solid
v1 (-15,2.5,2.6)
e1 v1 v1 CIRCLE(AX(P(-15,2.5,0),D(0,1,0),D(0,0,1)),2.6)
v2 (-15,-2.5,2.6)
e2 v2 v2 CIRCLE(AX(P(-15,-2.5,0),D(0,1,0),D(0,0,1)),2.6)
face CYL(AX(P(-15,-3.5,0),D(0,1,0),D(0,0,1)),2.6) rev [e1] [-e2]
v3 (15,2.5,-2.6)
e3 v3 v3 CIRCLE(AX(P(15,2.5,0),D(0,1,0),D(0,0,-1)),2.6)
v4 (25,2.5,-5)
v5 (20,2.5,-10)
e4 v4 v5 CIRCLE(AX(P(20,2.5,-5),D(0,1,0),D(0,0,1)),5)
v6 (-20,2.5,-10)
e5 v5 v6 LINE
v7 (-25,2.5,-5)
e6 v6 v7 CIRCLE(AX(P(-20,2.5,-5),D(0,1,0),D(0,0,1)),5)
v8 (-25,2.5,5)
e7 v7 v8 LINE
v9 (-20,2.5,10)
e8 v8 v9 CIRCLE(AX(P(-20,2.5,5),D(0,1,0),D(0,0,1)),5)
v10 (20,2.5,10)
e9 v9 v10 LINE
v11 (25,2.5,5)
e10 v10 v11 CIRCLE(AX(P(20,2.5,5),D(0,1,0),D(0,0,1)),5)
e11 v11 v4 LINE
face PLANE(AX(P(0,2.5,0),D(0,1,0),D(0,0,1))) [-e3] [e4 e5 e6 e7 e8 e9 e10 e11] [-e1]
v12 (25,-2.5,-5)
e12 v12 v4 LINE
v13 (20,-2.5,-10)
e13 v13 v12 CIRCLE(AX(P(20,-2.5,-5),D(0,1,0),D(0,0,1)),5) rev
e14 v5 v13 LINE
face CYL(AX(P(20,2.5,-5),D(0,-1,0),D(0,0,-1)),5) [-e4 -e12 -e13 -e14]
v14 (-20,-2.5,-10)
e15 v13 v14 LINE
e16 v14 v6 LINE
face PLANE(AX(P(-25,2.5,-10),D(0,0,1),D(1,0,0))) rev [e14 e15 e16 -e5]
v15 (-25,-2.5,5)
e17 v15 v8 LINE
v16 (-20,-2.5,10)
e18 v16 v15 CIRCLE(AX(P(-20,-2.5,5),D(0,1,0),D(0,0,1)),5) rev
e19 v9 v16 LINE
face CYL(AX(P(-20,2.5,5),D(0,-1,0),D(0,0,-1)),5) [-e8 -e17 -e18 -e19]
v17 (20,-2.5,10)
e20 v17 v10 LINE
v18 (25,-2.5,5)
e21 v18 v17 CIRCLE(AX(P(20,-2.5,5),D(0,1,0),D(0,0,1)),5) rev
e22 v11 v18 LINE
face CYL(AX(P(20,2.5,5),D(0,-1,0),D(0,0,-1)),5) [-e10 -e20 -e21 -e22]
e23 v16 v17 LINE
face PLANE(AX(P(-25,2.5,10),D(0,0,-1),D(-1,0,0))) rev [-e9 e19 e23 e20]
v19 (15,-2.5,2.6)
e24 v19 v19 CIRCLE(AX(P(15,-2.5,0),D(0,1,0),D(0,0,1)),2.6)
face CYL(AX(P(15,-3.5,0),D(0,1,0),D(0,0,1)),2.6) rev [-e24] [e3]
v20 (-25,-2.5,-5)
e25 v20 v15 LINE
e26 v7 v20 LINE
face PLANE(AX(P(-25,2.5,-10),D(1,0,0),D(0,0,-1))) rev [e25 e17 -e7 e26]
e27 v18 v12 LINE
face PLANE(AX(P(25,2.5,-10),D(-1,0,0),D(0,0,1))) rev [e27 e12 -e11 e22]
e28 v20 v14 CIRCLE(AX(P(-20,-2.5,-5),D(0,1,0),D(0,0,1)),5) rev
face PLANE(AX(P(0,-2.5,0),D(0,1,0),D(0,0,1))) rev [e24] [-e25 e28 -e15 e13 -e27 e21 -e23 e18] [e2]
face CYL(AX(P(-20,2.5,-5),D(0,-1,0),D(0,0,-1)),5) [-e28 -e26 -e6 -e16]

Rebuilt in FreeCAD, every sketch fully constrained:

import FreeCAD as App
import Part
import Sketcher
from FreeCAD import Vector
Q = App.Units.Quantity


def edges_at(feature, points):
    """Names of the edges that pass closest to the given points."""
    edges = feature.Shape.Edges
    near = lambda p: min(range(len(edges)), key=lambda i: edges[i].distToShape(Part.Vertex(*p))[0])
    return sorted({f"Edge{near(p) + 1}" for p in points})


def add_polygon(sketch, points):
    """Adds a closed chain of lines whose ends are joined by coincident constraints."""
    first, n = sketch.GeometryCount, len(points)
    for a, b in zip(points, points[1:] + points[:1]):
        sketch.addGeometry(Part.LineSegment(App.Vector(*a, 0), App.Vector(*b, 0)), False)
    for i in range(n):
        sketch.addConstraint(Sketcher.Constraint("Coincident", first + i, 2, first + (i + 1) % n, 1))

doc = App.newDocument("Part")
params = doc.addObject("Spreadsheet::Sheet", "Params")
for row, (alias, value) in enumerate([
    ("sketch1_width", "50 mm"),
    ("sketch1_height", "20 mm"),
    ("pad1_length", "5 mm"),
    ("sketch2_diameter", "5.2 mm"),
    ("pocket1_length", "6 mm"),
    ("fillet_radius", "5 mm"),
], start=1):
    params.set(f"A{row}", alias)
    params.set(f"B{row}", "=" + value)
    params.setAlias(f"B{row}", alias)

body = doc.addObject("PartDesign::Body", "Body")

sketch1 = doc.addObject("Sketcher::SketchObject", "Sketch")
body.addObject(sketch1)
sketch1.AttachmentSupport = (doc.XZ_Plane, [""])
sketch1.MapMode = "FlatFace"
add_polygon(sketch1, [(-25, -10), (-25, 10), (25, 10), (25, -10)])
sketch1.addConstraint([
    Sketcher.Constraint("Vertical", 0),
    Sketcher.Constraint("Horizontal", 1),
    Sketcher.Constraint("Vertical", 2),
    Sketcher.Constraint("Horizontal", 3),
    Sketcher.Constraint("Symmetric", 0, 2, 2, 2, -1, 1),
    Sketcher.Constraint("DistanceX", 1, 1, 1, 2, Q("50 mm")),
    Sketcher.Constraint("DistanceY", 0, 1, 0, 2, Q("20 mm")),
])
sketch1.setExpression("Constraints[9]", "Params.sketch1_width")
sketch1.setExpression("Constraints[10]", "Params.sketch1_height")
pad1 = doc.addObject("PartDesign::Pad", "Pad")
body.addObject(pad1)
pad1.Profile = sketch1
pad1.setExpression("Length", "Params.pad1_length")
pad1.Midplane = True

sketch2 = doc.addObject("Sketcher::SketchObject", "Sketch001")
body.addObject(sketch2)
sketch2.AttachmentSupport = (doc.XZ_Plane, [""])
sketch2.MapMode = "FlatFace"
sketch2.AttachmentOffset = App.Placement(Vector(0, 0, -2.5), App.Rotation())
sketch2.addGeometry([
    Part.Circle(Vector(-15, 0, 0), Vector(0, 0, 1), 2.6),
    Part.Circle(Vector(15, 0, 0), Vector(0, 0, 1), 2.6),
], False)
sketch2.addConstraint([
    Sketcher.Constraint("Equal", 0, 1),
    Sketcher.Constraint("Symmetric", 0, 3, 1, 3, -1, 1),
    Sketcher.Constraint("PointOnObject", 0, 3, -1),
    Sketcher.Constraint("Diameter", 0, Q("5.2 mm")),
    Sketcher.Constraint("DistanceX", 0, 3, -1, 1, Q("15 mm")),
])
sketch2.setExpression("Constraints[3]", "Params.sketch2_diameter")
pocket1 = doc.addObject("PartDesign::Pocket", "Pocket")
body.addObject(pocket1)
pocket1.Profile = sketch2
pocket1.setExpression("Length", "Params.pocket1_length")
pocket1.Reversed = True
doc.recompute()

fillet = doc.addObject("PartDesign::Fillet", "Fillet")
body.addObject(fillet)
fillet.Base = (pocket1, edges_at(pocket1, [
    (25, 0, 10),
    (-25, 0, 10),
    (-25, 0, -10),
    (25, 0, -10),
]))
fillet.setExpression("Radius", "Params.fillet_radius")

doc.recompute()
